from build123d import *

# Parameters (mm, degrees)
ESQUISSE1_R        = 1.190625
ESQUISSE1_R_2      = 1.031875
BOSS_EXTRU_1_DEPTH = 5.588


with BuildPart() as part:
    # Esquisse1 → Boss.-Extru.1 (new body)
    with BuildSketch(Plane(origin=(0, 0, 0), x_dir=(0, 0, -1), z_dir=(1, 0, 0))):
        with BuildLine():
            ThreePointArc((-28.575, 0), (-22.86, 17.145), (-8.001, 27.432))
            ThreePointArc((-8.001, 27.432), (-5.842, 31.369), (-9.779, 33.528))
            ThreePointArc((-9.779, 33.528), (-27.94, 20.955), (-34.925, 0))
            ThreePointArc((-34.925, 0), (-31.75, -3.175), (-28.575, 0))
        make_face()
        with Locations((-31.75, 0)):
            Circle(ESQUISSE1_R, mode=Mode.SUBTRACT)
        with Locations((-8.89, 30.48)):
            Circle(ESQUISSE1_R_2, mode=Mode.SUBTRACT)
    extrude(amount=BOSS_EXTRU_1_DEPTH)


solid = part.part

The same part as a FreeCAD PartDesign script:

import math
import FreeCAD as App
import Part
import Sketcher

V = App.Vector
Q = App.Units.Quantity

doc = App.newDocument("Part")
body = doc.addObject("PartDesign::Body", "Body")

sketch1 = body.newObject("Sketcher::SketchObject", "Sketch")
sketch1.AttachmentSupport = (doc.getObject("YZ_Plane"), [""])
sketch1.MapMode = "FlatFace"
sketch1.addGeometry([
    Part.ArcOfCircle(Part.Circle(V(0, 0, 0), V(0, 0, 1), 28.6), math.radians(16), math.radians(90)),
    Part.ArcOfCircle(Part.Circle(V(30.5, 8.9, 0), V(0, 0, 1), 3.2), math.radians(-164), math.radians(16)),
    Part.ArcOfCircle(Part.Circle(V(0, 0, 0), V(0, 0, 1), 34.9), math.radians(16), math.radians(90)),
    Part.ArcOfCircle(Part.Circle(V(0, 31.8, 0), V(0, 0, 1), 3.2), math.radians(90), math.radians(270)),
    Part.Circle(V(0, 31.8, 0), V(0, 0, 1), 1.2),
    Part.Circle(V(30.5, 8.9, 0), V(0, 0, 1), 1),
], False)
sketch1.addConstraint([
    Sketcher.Constraint("Tangent", 0, 1, 1, 1),
    Sketcher.Constraint("Tangent", 1, 2, 2, 1),
    Sketcher.Constraint("Tangent", 2, 2, 3, 1),
    Sketcher.Constraint("Tangent", 3, 2, 0, 2),
    Sketcher.Constraint("Coincident", 0, 3, -1, 1),
    Sketcher.Constraint("Coincident", 2, 3, -1, 1),
    Sketcher.Constraint("Coincident", 4, 3, 3, 3),
    Sketcher.Constraint("Coincident", 5, 3, 1, 3),
    Sketcher.Constraint("PointOnObject", 3, 3, -2),
    Sketcher.Constraint("Diameter", 4, Q("0.09375 in")),
    Sketcher.Constraint("Radius", 0, Q("1.125 in")),
    Sketcher.Constraint("Radius", 1, Q("0.125 in")),
    Sketcher.Constraint("DistanceX", -1, 1, 1, 3, Q("1.2 in")),
    Sketcher.Constraint("Diameter", 5, Q("2.06375 mm")),
])
pad1 = body.newObject("PartDesign::Pad", "Pad")
pad1.Profile = sketch1
pad1.Length = Q("0.22 in")

doc.recompute()
